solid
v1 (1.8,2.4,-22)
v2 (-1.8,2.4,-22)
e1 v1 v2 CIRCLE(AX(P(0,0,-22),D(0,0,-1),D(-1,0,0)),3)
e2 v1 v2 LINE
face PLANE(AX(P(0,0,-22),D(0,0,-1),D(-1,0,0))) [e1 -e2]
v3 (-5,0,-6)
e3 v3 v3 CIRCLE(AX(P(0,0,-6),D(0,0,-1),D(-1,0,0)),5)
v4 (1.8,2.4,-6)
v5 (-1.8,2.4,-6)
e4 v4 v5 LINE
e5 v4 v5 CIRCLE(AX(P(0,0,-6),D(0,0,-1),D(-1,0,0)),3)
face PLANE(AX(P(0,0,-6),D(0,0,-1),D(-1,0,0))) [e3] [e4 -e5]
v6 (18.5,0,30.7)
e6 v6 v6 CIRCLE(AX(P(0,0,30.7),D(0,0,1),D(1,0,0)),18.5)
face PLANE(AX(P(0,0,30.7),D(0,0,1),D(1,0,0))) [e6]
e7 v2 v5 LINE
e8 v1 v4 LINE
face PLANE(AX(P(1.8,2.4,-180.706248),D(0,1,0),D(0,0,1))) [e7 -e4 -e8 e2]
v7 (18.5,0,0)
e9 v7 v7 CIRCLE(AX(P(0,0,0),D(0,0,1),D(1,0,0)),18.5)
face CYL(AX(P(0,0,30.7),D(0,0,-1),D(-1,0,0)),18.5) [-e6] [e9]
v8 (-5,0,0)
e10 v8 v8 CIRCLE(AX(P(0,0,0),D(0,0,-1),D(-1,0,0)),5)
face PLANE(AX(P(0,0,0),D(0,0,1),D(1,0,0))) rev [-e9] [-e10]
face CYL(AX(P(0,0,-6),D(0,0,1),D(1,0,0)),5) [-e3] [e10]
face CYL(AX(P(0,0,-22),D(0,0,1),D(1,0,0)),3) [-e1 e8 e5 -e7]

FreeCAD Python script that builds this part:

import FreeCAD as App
import Part
import Sketcher

doc = App.newDocument("Part")
params = doc.addObject("Spreadsheet::Sheet", "Params")
for row, (alias, value) in enumerate([
    ("sketch1_diameter", "37 mm"),
    ("pad1_length", "30.7 mm"),
    ("sketch2_diameter", "10 mm"),
    ("pad2_length", "6 mm"),
    ("sketch3_diameter", "6 mm"),
    ("pad3_length", "16 mm"),
    ("pocket1_length", "59.836978 mm"),
    ("pocket1_length2", "16 mm"),
], start=1):
    params.set(f"A{row}", alias)
    params.set(f"B{row}", "=" + value)
    params.setAlias(f"B{row}", alias)

body = doc.addObject("PartDesign::Body", "Body")

# Sketch on XY plane
sketch1 = body.newObject("Sketcher::SketchObject", "Sketch")
sketch1.AttachmentSupport = (doc.getObject("XY_Plane"), [""])
sketch1.MapMode = "FlatFace"
sketch1.addGeometry(Part.Circle(App.Vector(0, 0, 0), App.Vector(0, 0, 1), 18), False)
sketch1.addConstraint([
    Sketcher.Constraint("Coincident", 0, 3, -1, 1),
    Sketcher.Constraint("Diameter", 0, 37.0),
])
sketch1.setExpression("Constraints[1]", "Params.sketch1_diameter")
pad1 = body.newObject("PartDesign::Pad", "Pad")
pad1.Profile = sketch1
pad1.setExpression("Length", "Params.pad1_length")

# Sketch on XY plane
sketch2 = body.newObject("Sketcher::SketchObject", "Sketch001")
sketch2.AttachmentSupport = (doc.getObject("XY_Plane"), [""])
sketch2.MapMode = "FlatFace"
sketch2.addGeometry(Part.Circle(App.Vector(0, 0, 0), App.Vector(0, 0, 1), 5), False)
sketch2.addConstraint([
    Sketcher.Constraint("Coincident", 0, 3, -1, 1),
    Sketcher.Constraint("Diameter", 0, 10.0),
])
sketch2.setExpression("Constraints[1]", "Params.sketch2_diameter")
pad2 = body.newObject("PartDesign::Pad", "Pad001")
pad2.Profile = sketch2
pad2.setExpression("Length", "Params.pad2_length")
pad2.Reversed = True

# Sketch on XY plane
sketch3 = body.newObject("Sketcher::SketchObject", "Sketch002")
sketch3.AttachmentSupport = (doc.getObject("XY_Plane"), [""])
sketch3.MapMode = "FlatFace"
sketch3.AttachmentOffset = App.Placement(App.Vector(0, 0, -6), App.Rotation())
sketch3.addGeometry(Part.Circle(App.Vector(0, 0, 0), App.Vector(0, 0, 1), 3), False)
sketch3.addConstraint([
    Sketcher.Constraint("Coincident", 0, 3, -1, 1),
    Sketcher.Constraint("Diameter", 0, 6.0),
])
sketch3.setExpression("Constraints[1]", "Params.sketch3_diameter")
pad3 = body.newObject("PartDesign::Pad", "Pad002")
pad3.Profile = sketch3
pad3.setExpression("Length", "Params.pad3_length")
pad3.Reversed = True

# Sketch on XY plane
sketch4 = body.newObject("Sketcher::SketchObject", "Sketch003")
sketch4.AttachmentSupport = (doc.getObject("XY_Plane"), [""])
sketch4.MapMode = "FlatFace"
sketch4.AttachmentOffset = App.Placement(App.Vector(0, 0, -22), App.Rotation())
sketch4.addGeometry([
    Part.LineSegment(App.Vector(70, 2, 0), App.Vector(-70, 2, 0)),
    Part.LineSegment(App.Vector(-70, 2, 0), App.Vector(-70, 139, 0)),
    Part.LineSegment(App.Vector(-70, 139, 0), App.Vector(70, 139, 0)),
    Part.LineSegment(App.Vector(70, 139, 0), App.Vector(70, 2, 0)),
], False)
sketch4.addConstraint([
    Sketcher.Constraint("Coincident", 0, 2, 1, 1),
    Sketcher.Constraint("Coincident", 1, 2, 2, 1),
    Sketcher.Constraint("Coincident", 2, 2, 3, 1),
    Sketcher.Constraint("Coincident", 3, 2, 0, 1),
    Sketcher.Constraint("Horizontal", 0),
    Sketcher.Constraint("Vertical", 1),
    Sketcher.Constraint("Horizontal", 2),
    Sketcher.Constraint("Vertical", 3),
    Sketcher.Constraint("DistanceY", -1, 1, 0, 2, 2.4),
    Sketcher.Constraint("DistanceX", 0, 2, 0, 1, 140.143554),
    Sketcher.Constraint("DistanceY", 1, 1, 1, 2, 136.543554),
    Sketcher.Constraint("DistanceX", 0, 2, -1, 1, 70.071777),
])
pocket1 = body.newObject("PartDesign::Pocket", "Pocket")
pocket1.Profile = sketch4
pocket1.Type = "TwoLengths"
pocket1.setExpression("Length", "Params.pocket1_length")
pocket1.setExpression("Length2", "Params.pocket1_length2")

doc.recompute()
